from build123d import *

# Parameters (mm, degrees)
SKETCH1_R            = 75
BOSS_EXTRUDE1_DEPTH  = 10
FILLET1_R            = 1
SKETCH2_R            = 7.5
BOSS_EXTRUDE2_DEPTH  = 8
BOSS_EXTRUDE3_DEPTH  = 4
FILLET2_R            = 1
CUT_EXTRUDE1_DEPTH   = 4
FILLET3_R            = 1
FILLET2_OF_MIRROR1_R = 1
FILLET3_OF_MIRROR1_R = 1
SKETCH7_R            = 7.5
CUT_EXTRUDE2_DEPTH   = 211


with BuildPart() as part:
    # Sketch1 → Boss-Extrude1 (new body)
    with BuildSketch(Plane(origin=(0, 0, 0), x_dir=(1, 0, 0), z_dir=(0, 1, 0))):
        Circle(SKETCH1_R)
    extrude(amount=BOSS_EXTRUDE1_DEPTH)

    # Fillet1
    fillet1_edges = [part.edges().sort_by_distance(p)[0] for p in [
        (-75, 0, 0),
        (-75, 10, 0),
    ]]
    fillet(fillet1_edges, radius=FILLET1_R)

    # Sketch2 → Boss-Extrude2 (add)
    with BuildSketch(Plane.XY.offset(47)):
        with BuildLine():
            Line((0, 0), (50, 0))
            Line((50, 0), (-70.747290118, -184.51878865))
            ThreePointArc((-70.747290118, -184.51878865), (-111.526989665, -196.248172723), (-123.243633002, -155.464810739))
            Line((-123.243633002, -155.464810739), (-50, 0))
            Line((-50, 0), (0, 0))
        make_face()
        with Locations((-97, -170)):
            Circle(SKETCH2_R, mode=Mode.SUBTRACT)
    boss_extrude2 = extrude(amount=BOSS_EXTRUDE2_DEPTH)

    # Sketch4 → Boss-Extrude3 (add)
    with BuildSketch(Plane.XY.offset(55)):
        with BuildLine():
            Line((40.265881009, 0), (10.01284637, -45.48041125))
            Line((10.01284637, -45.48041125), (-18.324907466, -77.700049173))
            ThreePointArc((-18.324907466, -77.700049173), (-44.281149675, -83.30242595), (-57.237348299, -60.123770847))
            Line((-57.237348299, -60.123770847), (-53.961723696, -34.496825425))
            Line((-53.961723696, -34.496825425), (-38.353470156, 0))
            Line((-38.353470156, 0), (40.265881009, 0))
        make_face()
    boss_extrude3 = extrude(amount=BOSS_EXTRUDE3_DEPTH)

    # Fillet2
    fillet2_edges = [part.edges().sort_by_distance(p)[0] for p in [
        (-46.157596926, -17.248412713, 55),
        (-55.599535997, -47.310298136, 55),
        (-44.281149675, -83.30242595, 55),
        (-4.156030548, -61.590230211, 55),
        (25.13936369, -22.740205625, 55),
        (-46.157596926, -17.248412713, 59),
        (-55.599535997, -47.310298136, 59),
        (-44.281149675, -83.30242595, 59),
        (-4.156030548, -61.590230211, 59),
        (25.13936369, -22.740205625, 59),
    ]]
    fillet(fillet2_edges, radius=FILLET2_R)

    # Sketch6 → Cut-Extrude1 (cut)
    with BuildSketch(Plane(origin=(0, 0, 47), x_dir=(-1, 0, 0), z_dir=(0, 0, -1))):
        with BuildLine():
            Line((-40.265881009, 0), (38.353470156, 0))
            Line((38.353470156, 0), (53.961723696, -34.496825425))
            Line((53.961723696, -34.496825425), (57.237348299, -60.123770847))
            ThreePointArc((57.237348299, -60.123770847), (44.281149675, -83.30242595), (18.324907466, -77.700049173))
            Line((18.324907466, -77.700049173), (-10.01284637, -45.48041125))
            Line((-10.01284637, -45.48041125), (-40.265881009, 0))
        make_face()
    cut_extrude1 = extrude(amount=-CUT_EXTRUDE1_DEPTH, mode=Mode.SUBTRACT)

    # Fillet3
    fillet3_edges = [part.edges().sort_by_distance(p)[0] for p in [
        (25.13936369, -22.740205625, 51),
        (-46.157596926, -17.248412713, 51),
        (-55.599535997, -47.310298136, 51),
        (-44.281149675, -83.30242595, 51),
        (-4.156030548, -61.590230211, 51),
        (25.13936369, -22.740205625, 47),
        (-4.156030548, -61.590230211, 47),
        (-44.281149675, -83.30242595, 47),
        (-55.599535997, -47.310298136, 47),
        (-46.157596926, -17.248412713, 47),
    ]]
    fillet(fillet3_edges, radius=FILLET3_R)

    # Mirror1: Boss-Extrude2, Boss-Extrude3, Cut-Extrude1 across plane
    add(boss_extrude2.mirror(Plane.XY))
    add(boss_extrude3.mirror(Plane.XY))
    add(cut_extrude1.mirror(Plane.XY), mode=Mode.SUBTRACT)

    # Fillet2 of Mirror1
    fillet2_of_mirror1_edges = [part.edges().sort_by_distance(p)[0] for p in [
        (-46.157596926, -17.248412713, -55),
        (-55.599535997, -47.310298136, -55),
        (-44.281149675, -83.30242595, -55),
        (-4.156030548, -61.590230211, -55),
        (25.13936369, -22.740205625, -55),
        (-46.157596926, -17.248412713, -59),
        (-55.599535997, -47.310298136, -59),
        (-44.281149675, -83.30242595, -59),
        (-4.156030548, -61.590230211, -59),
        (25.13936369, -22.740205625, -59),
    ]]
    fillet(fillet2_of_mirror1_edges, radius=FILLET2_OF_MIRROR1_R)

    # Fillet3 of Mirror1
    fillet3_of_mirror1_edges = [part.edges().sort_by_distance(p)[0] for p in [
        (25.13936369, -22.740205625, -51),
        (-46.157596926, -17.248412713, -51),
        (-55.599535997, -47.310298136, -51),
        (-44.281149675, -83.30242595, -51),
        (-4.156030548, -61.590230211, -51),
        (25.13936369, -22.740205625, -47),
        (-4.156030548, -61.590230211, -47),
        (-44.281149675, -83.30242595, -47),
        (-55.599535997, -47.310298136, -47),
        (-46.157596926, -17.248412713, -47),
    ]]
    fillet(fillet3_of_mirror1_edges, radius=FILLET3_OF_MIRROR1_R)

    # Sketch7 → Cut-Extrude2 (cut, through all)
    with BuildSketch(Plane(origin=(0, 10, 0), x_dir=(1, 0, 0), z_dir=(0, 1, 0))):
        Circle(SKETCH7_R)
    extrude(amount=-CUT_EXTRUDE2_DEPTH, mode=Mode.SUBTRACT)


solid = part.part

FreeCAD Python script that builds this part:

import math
import FreeCAD as App
import Part
import Sketcher


def edges_at(feature, points):
    """Names of the edges that pass closest to the given points."""
    edges = feature.Shape.Edges
    near = lambda p: min(range(len(edges)), key=lambda i: edges[i].distToShape(Part.Vertex(*p))[0])
    return sorted({f"Edge{near(p) + 1}" for p in points})

doc = App.newDocument("Part")
params = doc.addObject("Spreadsheet::Sheet", "Params")
for row, (alias, value) in enumerate([
    ("sketch1_diameter", "150 mm"),
    ("pad1_length", "10 mm"),
    ("fillet_radius", "1 mm"),
    ("sketch2_diameter", "15 mm"),
    ("sketch2_radius", "30 mm"),
    ("sketch2_width", "100 mm"),
    ("pad2_length", "8 mm"),
    ("pad3_length", "4 mm"),
    ("fillet2_radius", "1 mm"),
    ("pocket1_length", "4 mm"),
    ("fillet3_radius", "1 mm"),
    ("fillet4_radius", "1 mm"),
    ("fillet5_radius", "1 mm"),
    ("sketch5_diameter", "15 mm"),
], start=1):
    params.set(f"A{row}", alias)
    params.set(f"B{row}", "=" + value)
    params.setAlias(f"B{row}", alias)

body = doc.addObject("PartDesign::Body", "Body")

sketch1 = body.newObject("Sketcher::SketchObject", "Sketch")
sketch1.AttachmentSupport = (doc.getObject("XZ_Plane"), [""])
sketch1.MapMode = "FlatFace"
sketch1.addGeometry(Part.Circle(App.Vector(0, 0, 0), App.Vector(0, 0, 1), 75), False)
sketch1.addConstraint(Sketcher.Constraint("Coincident", 0, 3, -1, 1))
sketch1.addConstraint(Sketcher.Constraint("Diameter", 0, 150.0))
sketch1.setExpression("Constraints[1]", "Params.sketch1_diameter")
pad1 = body.newObject("PartDesign::Pad", "Pad")
pad1.Profile = sketch1
pad1.setExpression("Length", "Params.pad1_length")
pad1.Reversed = True
doc.recompute()

fillet = body.newObject("PartDesign::Fillet", "Fillet")
fillet.Base = (pad1, edges_at(pad1, [(-75, 0, 0), (-75, 10, 0)]))
fillet.setExpression("Radius", "Params.fillet_radius")

sketch2 = body.newObject("Sketcher::SketchObject", "Sketch001")
sketch2.AttachmentSupport = (doc.getObject("XY_Plane"), [""])
sketch2.MapMode = "FlatFace"
sketch2.AttachmentOffset = App.Placement(App.Vector(0, 0, 47), App.Rotation())
sketch2.addGeometry(Part.LineSegment(App.Vector(-71, -185, 0), App.Vector(50, 0, 0)), False)
sketch2.addGeometry(Part.LineSegment(App.Vector(50, 0, 0), App.Vector(-50, 0, 0)), False)
sketch2.addGeometry(Part.LineSegment(App.Vector(-50, 0, 0), App.Vector(-123, -155, 0)), False)
sketch2.addGeometry(Part.ArcOfCircle(Part.Circle(App.Vector(-97, -170, 0), App.Vector(0, 0, 1), 30), math.radians(151), math.radians(331)), False)
sketch2.addGeometry(Part.Circle(App.Vector(-97, -170, 0), App.Vector(0, 0, 1), 8), False)
sketch2.addConstraint(Sketcher.Constraint("Coincident", 0, 2, 1, 1))
sketch2.addConstraint(Sketcher.Constraint("Coincident", 1, 2, 2, 1))
sketch2.addConstraint(Sketcher.Constraint("Coincident", 2, 2, 3, 1))
sketch2.addConstraint(Sketcher.Constraint("Coincident", 3, 2, 0, 1))
sketch2.addConstraint(Sketcher.Constraint("Horizontal", 1))
sketch2.addConstraint(Sketcher.Constraint("Coincident", 4, 3, 3, 3))
sketch2.addConstraint(Sketcher.Constraint("Symmetric", 0, 2, 1, 2, -1, 1))
sketch2.addConstraint(Sketcher.Constraint("Diameter", 4, 15.0))
sketch2.addConstraint(Sketcher.Constraint("Radius", 3, 30.0))
sketch2.addConstraint(Sketcher.Constraint("DistanceX", 1, 2, 1, 1, 100.0))
sketch2.addConstraint(Sketcher.Constraint("DistanceX", 3, 3, -1, 1, 97.0))
sketch2.addConstraint(Sketcher.Constraint("DistanceY", 3, 3, -1, 1, 170.0))
sketch2.addConstraint(Sketcher.Constraint("DistanceY", 2, 2, -1, 1, 155.464811))
sketch2.addConstraint(Sketcher.Constraint("DistanceX", 3, 2, -1, 1, 70.74729))
sketch2.setExpression("Constraints[7]", "Params.sketch2_diameter")
sketch2.setExpression("Constraints[8]", "Params.sketch2_radius")
sketch2.setExpression("Constraints[9]", "Params.sketch2_width")
pad2 = body.newObject("PartDesign::Pad", "Pad001")
pad2.Profile = sketch2
pad2.setExpression("Length", "Params.pad2_length")

sketch3 = body.newObject("Sketcher::SketchObject", "Sketch002")
sketch3.AttachmentSupport = (doc.getObject("XY_Plane"), [""])
sketch3.MapMode = "FlatFace"
sketch3.AttachmentOffset = App.Placement(App.Vector(0, 0, 55), App.Rotation())
sketch3.addGeometry(Part.LineSegment(App.Vector(10, -45, 0), App.Vector(40, 0, 0)), False)
sketch3.addGeometry(Part.LineSegment(App.Vector(40, 0, 0), App.Vector(-38, 0, 0)), False)
sketch3.addGeometry(Part.LineSegment(App.Vector(-38, 0, 0), App.Vector(-54, -34, 0)), False)
sketch3.addGeometry(Part.LineSegment(App.Vector(-54, -34, 0), App.Vector(-57, -60, 0)), False)
sketch3.addGeometry(Part.ArcOfCircle(Part.Circle(App.Vector(-35, -63, 0), App.Vector(0, 0, 1), 22), math.radians(173), math.radians(319)), False)
sketch3.addGeometry(Part.LineSegment(App.Vector(-18, -78, 0), App.Vector(10, -45, 0)), False)
sketch3.addConstraint(Sketcher.Constraint("Coincident", 0, 2, 1, 1))
sketch3.addConstraint(Sketcher.Constraint("Coincident", 1, 2, 2, 1))
sketch3.addConstraint(Sketcher.Constraint("Coincident", 2, 2, 3, 1))
sketch3.addConstraint(Sketcher.Constraint("Tangent", 3, 2, 4, 1))
sketch3.addConstraint(Sketcher.Constraint("Tangent", 4, 2, 5, 1))
sketch3.addConstraint(Sketcher.Constraint("Coincident", 5, 2, 0, 1))
sketch3.addConstraint(Sketcher.Constraint("Horizontal", 1))
sketch3.addConstraint(Sketcher.Constraint("PointOnObject", 0, 2, -1))
sketch3.addConstraint(Sketcher.Constraint("Radius", 4, 22.32725))
sketch3.addConstraint(Sketcher.Constraint("DistanceX", 1, 2, 1, 1, 78.619351))
sketch3.addConstraint(Sketcher.Constraint("DistanceY", 4, 3, -1, 1, 62.954599))
sketch3.addConstraint(Sketcher.Constraint("Distance", 2, 37.863552))
sketch3.addConstraint(Sketcher.Constraint("Distance", 3, 25.835442))
sketch3.addConstraint(Sketcher.Constraint("Distance", 5, 42.90843))
sketch3.addConstraint(Sketcher.Constraint("DistanceX", -1, 1, 0, 2, 40.265881))
sketch3.addConstraint(Sketcher.Constraint("DistanceX", 3, 2, -1, 1, 57.237348))
sketch3.addConstraint(Sketcher.Constraint("DistanceY", 4, 2, -1, 1, 77.700049))
pad3 = body.newObject("PartDesign::Pad", "Pad002")
pad3.Profile = sketch3
pad3.setExpression("Length", "Params.pad3_length")
doc.recompute()

fillet2 = body.newObject("PartDesign::Fillet", "Fillet001")
fillet2.Base = (pad3, edges_at(pad3, [
    (-46.158, -17.248, 55),
    (-55.6, -47.31, 55),
    (-44.281, -83.302, 55),
    (-4.156, -61.59, 55),
    (25.139, -22.74, 55),
    (-46.158, -17.248, 59),
    (-55.6, -47.31, 59),
    (-44.281, -83.302, 59),
    (-4.156, -61.59, 59),
    (25.139, -22.74, 59),
]))
fillet2.setExpression("Radius", "Params.fillet2_radius")

sketch4 = body.newObject("Sketcher::SketchObject", "Sketch003")
sketch4.AttachmentSupport = (doc.getObject("XY_Plane"), [""])
sketch4.MapMode = "FlatFace"
sketch4.AttachmentOffset = App.Placement(App.Vector(0, 0, 47), App.Rotation())
sketch4.addGeometry(Part.LineSegment(App.Vector(-38, 0, 0), App.Vector(40, 0, 0)), False)
sketch4.addGeometry(Part.LineSegment(App.Vector(40, 0, 0), App.Vector(10, -45, 0)), False)
sketch4.addGeometry(Part.LineSegment(App.Vector(10, -45, 0), App.Vector(-18, -78, 0)), False)
sketch4.addGeometry(Part.ArcOfCircle(Part.Circle(App.Vector(-35, -63, 0), App.Vector(0, 0, 1), 22), math.radians(173), math.radians(319)), False)
sketch4.addGeometry(Part.LineSegment(App.Vector(-57, -60, 0), App.Vector(-54, -34, 0)), False)
sketch4.addGeometry(Part.LineSegment(App.Vector(-54, -34, 0), App.Vector(-38, 0, 0)), False)
sketch4.addConstraint(Sketcher.Constraint("Coincident", 0, 2, 1, 1))
sketch4.addConstraint(Sketcher.Constraint("Coincident", 1, 2, 2, 1))
sketch4.addConstraint(Sketcher.Constraint("Tangent", 2, 2, 3, 2))
sketch4.addConstraint(Sketcher.Constraint("Tangent", 3, 1, 4, 1))
sketch4.addConstraint(Sketcher.Constraint("Coincident", 4, 2, 5, 1))
sketch4.addConstraint(Sketcher.Constraint("Coincident", 5, 2, 0, 1))
sketch4.addConstraint(Sketcher.Constraint("Horizontal", 0))
sketch4.addConstraint(Sketcher.Constraint("PointOnObject", 0, 2, -1))
sketch4.addConstraint(Sketcher.Constraint("Radius", 3, 22.32725))
sketch4.addConstraint(Sketcher.Constraint("DistanceX", 0, 1, 0, 2, 78.619351))
sketch4.addConstraint(Sketcher.Constraint("DistanceY", 3, 3, -1, 1, 62.954599))
sketch4.addConstraint(Sketcher.Constraint("Distance", 2, 42.90843))
sketch4.addConstraint(Sketcher.Constraint("Distance", 4, 25.835442))
sketch4.addConstraint(Sketcher.Constraint("Distance", 5, 37.863552))
sketch4.addConstraint(Sketcher.Constraint("DistanceX", -1, 1, 0, 2, 40.265881))
sketch4.addConstraint(Sketcher.Constraint("DistanceY", 1, 2, -1, 1, 45.480411))
sketch4.addConstraint(Sketcher.Constraint("DistanceX", 3, 1, -1, 1, 57.237348))
pocket1 = body.newObject("PartDesign::Pocket", "Pocket")
pocket1.Profile = sketch4
pocket1.setExpression("Length", "Params.pocket1_length")
pocket1.Reversed = True
doc.recompute()

fillet3 = body.newObject("PartDesign::Fillet", "Fillet002")
fillet3.Base = (pocket1, edges_at(pocket1, [
    (25.139, -22.74, 51),
    (-46.158, -17.248, 51),
    (-55.6, -47.31, 51),
    (-44.281, -83.302, 51),
    (-4.156, -61.59, 51),
    (25.139, -22.74, 47),
    (-4.156, -61.59, 47),
    (-44.281, -83.302, 47),
    (-55.6, -47.31, 47),
    (-46.158, -17.248, 47),
]))
fillet3.setExpression("Radius", "Params.fillet3_radius")
doc.recompute()

mirrored = body.newObject("PartDesign::Mirrored", "Mirrored")
mirrored.Originals = [pad2, pad3, pocket1]
mirrored.MirrorPlane = (doc.getObject("XY_Plane"), [""])
body.Tip = mirrored
doc.recompute()

fillet4 = body.newObject("PartDesign::Fillet", "Fillet003")
fillet4.Base = (mirrored, edges_at(mirrored, [
    (-46.158, -17.248, -55),
    (-55.6, -47.31, -55),
    (-44.281, -83.302, -55),
    (-4.156, -61.59, -55),
    (25.139, -22.74, -55),
    (-46.158, -17.248, -59),
    (-55.6, -47.31, -59),
    (-44.281, -83.302, -59),
    (-4.156, -61.59, -59),
    (25.139, -22.74, -59),
]))
fillet4.setExpression("Radius", "Params.fillet4_radius")
doc.recompute()

fillet5 = body.newObject("PartDesign::Fillet", "Fillet004")
fillet5.Base = (fillet4, edges_at(fillet4, [
    (25.139, -22.74, -51),
    (-46.158, -17.248, -51),
    (-55.6, -47.31, -51),
    (-44.281, -83.302, -51),
    (-4.156, -61.59, -51),
    (25.139, -22.74, -47),
    (-4.156, -61.59, -47),
    (-44.281, -83.302, -47),
    (-55.6, -47.31, -47),
    (-46.158, -17.248, -47),
]))
fillet5.setExpression("Radius", "Params.fillet5_radius")

sketch5 = body.newObject("Sketcher::SketchObject", "Sketch004")
sketch5.AttachmentSupport = (doc.getObject("XZ_Plane"), [""])
sketch5.MapMode = "FlatFace"
sketch5.AttachmentOffset = App.Placement(App.Vector(0, 0, -10), App.Rotation())
sketch5.addGeometry(Part.Circle(App.Vector(0, 0, 0), App.Vector(0, 0, 1), 8), False)
sketch5.addConstraint(Sketcher.Constraint("Coincident", 0, 3, -1, 1))
sketch5.addConstraint(Sketcher.Constraint("Diameter", 0, 15.0))
sketch5.setExpression("Constraints[1]", "Params.sketch5_diameter")
pocket2 = body.newObject("PartDesign::Pocket", "Pocket001")
pocket2.Profile = sketch5
pocket2.Type = "ThroughAll"
pocket2.Reversed = True

doc.recompute()
